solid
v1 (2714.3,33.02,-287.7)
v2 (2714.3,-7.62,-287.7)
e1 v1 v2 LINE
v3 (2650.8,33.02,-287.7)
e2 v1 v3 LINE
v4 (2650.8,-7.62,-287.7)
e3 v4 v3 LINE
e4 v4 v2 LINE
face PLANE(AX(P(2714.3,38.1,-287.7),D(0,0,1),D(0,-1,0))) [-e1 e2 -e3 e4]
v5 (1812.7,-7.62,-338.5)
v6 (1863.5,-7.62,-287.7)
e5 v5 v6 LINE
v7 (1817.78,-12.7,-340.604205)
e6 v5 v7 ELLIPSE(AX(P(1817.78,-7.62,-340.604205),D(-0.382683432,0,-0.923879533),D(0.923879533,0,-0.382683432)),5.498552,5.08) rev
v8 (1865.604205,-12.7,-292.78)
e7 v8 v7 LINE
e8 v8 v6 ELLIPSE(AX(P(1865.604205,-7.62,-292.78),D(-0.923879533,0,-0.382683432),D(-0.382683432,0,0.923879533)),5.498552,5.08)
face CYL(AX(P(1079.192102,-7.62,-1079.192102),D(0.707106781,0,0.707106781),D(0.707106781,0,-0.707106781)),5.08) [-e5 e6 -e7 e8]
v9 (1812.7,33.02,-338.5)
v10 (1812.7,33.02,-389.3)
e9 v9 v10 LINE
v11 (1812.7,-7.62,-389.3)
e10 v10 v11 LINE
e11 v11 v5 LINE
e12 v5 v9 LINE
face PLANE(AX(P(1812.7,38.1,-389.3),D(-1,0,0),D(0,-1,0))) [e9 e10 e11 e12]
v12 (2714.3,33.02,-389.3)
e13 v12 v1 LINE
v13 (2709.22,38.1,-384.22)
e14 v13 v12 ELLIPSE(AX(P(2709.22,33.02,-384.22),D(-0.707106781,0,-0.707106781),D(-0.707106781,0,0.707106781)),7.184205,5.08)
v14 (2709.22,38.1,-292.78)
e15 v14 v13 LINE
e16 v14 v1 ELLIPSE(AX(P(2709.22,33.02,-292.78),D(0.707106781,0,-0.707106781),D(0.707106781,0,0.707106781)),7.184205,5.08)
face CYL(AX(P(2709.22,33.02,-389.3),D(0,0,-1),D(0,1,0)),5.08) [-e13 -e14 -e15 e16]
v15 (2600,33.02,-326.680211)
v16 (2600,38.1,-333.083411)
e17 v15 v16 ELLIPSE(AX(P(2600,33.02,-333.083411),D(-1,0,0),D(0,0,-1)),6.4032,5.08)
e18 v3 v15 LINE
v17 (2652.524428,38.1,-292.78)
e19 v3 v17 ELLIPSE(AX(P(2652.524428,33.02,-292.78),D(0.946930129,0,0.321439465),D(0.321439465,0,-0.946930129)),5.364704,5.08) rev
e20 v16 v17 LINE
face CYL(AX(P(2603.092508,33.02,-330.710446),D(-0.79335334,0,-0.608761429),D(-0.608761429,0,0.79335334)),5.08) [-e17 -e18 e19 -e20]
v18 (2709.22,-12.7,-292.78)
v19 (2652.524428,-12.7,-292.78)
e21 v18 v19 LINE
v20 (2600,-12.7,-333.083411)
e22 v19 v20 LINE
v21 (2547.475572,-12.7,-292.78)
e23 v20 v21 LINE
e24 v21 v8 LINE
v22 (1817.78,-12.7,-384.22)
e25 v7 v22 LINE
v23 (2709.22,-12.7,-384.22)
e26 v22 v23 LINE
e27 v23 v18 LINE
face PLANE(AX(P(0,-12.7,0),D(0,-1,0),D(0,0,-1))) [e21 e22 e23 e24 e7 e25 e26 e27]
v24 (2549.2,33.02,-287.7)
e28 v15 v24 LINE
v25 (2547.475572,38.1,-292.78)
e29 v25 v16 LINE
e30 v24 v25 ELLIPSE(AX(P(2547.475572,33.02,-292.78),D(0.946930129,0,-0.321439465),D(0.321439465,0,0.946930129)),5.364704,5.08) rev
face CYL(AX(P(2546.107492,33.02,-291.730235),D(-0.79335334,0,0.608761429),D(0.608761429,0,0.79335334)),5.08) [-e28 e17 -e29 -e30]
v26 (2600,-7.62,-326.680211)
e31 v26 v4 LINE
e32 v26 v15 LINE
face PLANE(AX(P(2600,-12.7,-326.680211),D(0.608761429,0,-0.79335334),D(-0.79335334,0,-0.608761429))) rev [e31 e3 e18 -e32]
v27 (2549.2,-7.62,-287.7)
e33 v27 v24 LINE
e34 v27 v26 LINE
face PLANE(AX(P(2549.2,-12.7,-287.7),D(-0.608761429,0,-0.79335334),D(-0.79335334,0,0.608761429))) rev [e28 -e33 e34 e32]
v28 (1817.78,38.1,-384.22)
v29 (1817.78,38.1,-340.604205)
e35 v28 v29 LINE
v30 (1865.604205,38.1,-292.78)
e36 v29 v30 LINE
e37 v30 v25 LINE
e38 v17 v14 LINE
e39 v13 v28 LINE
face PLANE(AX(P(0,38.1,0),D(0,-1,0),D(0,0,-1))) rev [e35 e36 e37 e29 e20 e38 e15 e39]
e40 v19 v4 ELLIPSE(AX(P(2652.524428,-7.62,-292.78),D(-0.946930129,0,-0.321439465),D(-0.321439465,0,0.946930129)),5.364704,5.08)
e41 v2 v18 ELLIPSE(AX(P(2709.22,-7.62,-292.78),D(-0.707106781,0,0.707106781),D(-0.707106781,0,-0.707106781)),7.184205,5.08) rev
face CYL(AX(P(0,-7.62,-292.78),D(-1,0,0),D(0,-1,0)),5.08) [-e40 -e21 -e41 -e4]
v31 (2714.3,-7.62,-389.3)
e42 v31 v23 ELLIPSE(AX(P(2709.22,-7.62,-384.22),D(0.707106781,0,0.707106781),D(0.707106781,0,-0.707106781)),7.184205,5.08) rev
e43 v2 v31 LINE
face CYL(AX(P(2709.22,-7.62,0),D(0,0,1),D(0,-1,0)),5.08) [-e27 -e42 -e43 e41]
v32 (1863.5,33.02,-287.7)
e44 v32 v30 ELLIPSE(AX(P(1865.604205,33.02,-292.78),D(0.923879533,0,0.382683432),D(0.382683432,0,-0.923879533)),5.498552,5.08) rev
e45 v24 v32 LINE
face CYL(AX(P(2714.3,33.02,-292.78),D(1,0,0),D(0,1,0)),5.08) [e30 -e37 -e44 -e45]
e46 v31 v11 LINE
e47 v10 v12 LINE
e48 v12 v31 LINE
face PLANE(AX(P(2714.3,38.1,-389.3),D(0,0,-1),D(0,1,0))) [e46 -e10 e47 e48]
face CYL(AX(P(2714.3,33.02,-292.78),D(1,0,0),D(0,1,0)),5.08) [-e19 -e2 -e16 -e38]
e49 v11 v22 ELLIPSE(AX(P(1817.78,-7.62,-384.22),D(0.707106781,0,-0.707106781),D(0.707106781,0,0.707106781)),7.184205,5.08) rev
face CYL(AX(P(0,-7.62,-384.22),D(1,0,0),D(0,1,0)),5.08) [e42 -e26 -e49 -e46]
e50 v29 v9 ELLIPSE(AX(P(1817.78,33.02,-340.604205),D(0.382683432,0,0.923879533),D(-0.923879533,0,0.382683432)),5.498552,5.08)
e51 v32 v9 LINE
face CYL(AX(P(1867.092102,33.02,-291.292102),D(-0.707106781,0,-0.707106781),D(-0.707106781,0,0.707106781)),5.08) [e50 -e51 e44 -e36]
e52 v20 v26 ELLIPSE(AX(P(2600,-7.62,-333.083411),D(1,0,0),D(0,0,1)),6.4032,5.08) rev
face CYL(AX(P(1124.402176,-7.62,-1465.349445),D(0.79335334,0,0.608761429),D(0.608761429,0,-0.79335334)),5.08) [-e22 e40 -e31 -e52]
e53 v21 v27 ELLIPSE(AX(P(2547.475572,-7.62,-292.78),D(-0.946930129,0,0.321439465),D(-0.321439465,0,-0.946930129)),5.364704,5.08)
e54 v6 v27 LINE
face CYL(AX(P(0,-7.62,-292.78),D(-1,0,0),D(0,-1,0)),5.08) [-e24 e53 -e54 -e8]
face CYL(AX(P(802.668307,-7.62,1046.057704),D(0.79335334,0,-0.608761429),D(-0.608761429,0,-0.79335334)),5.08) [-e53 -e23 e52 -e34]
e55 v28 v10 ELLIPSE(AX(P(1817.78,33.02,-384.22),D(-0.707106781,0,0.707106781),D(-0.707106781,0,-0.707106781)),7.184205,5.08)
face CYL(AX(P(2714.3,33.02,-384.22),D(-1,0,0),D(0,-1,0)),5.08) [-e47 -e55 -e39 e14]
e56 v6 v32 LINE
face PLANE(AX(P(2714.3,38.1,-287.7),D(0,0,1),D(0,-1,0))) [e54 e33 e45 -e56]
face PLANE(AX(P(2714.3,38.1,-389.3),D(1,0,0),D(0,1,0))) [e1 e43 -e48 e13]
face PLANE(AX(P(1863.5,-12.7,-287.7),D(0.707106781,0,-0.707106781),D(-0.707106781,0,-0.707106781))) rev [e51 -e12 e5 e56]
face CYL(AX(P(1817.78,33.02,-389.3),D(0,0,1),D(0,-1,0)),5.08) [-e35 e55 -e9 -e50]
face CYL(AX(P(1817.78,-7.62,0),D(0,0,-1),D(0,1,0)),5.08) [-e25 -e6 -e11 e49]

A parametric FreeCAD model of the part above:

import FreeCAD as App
import Part
import Sketcher
Q = App.Units.Quantity


def edges_at(feature, points):
    """Names of the edges that pass closest to the given points."""
    edges = feature.Shape.Edges
    near = lambda p: min(range(len(edges)), key=lambda i: edges[i].distToShape(Part.Vertex(*p))[0])
    return sorted({f"Edge{near(p) + 1}" for p in points})

doc = App.newDocument("Part")
params = doc.addObject("Spreadsheet::Sheet", "Params")
for row, (alias, value) in enumerate([
    ("sketch1_height", "4 in"),
    ("pad1_length", "2 in"),
    ("sketch2_width", "4 in"),
    ("sketch2_width2", "2 in"),
    ("fillet_radius", "0.2 in"),
], start=1):
    params.set(f"A{row}", alias)
    params.set(f"B{row}", "=" + value)
    params.setAlias(f"B{row}", alias)

body = doc.addObject("PartDesign::Body", "Body")

sketch1 = body.newObject("Sketcher::SketchObject", "Sketch")
sketch1.AttachmentSupport = (doc.getObject("XZ_Plane"), [""])
sketch1.MapMode = "FlatFace"
sketch1.AttachmentOffset = App.Placement(App.Vector(0, 0, 0.5 * 25.4), App.Rotation())
sketch1.addGeometry([
    Part.LineSegment(App.Vector(2714, -389, 0), App.Vector(2714, -288, 0)),
    Part.LineSegment(App.Vector(2714, -288, 0), App.Vector(1813, -288, 0)),
    Part.LineSegment(App.Vector(1813, -288, 0), App.Vector(1813, -389, 0)),
    Part.LineSegment(App.Vector(1813, -389, 0), App.Vector(2714, -389, 0)),
], False)
sketch1.addConstraint([
    Sketcher.Constraint("Coincident", 0, 2, 1, 1),
    Sketcher.Constraint("Coincident", 1, 2, 2, 1),
    Sketcher.Constraint("Coincident", 2, 2, 3, 1),
    Sketcher.Constraint("Coincident", 3, 2, 0, 1),
    Sketcher.Constraint("Vertical", 0),
    Sketcher.Constraint("Horizontal", 1),
    Sketcher.Constraint("Vertical", 2),
    Sketcher.Constraint("Horizontal", 3),
    Sketcher.Constraint("DistanceY", 0, 1, 0, 2, Q("4 in")),
    Sketcher.Constraint("DistanceX", 1, 2, 1, 1, 901.6),
    Sketcher.Constraint("DistanceX", -1, 1, 0, 2, 2714.3),
    Sketcher.Constraint("DistanceY", 0, 2, -1, 1, 287.7),
])
sketch1.setExpression("Constraints[8]", "Params.sketch1_height")
pad1 = body.newObject("PartDesign::Pad", "Pad")
pad1.Profile = sketch1
pad1.setExpression("Length", "Params.pad1_length")
pad1.Reversed = True

sketch2 = body.newObject("Sketcher::SketchObject", "Sketch001")
sketch2.AttachmentSupport = (doc.getObject("XZ_Plane"), [""])
sketch2.MapMode = "FlatFace"
sketch2.AttachmentOffset = App.Placement(App.Vector(0, 0, -1.5 * 25.4), App.Rotation())
sketch2.addGeometry([
    Part.LineSegment(App.Vector(2600, -327, 0), App.Vector(2549, -288, 0)),
    Part.LineSegment(App.Vector(2549, -288, 0), App.Vector(2651, -288, 0)),
    Part.LineSegment(App.Vector(2651, -288, 0), App.Vector(2600, -327, 0)),
    Part.LineSegment(App.Vector(1813, -338, 0), App.Vector(1813, -288, 0)),
    Part.LineSegment(App.Vector(1813, -288, 0), App.Vector(1864, -288, 0)),
    Part.LineSegment(App.Vector(1864, -288, 0), App.Vector(1813, -338, 0)),
], False)
sketch2.addConstraint([
    Sketcher.Constraint("Coincident", 0, 2, 1, 1),
    Sketcher.Constraint("Coincident", 1, 2, 2, 1),
    Sketcher.Constraint("Coincident", 2, 2, 0, 1),
    Sketcher.Constraint("Coincident", 3, 2, 4, 1),
    Sketcher.Constraint("Coincident", 4, 2, 5, 1),
    Sketcher.Constraint("Coincident", 5, 2, 3, 1),
    Sketcher.Constraint("Horizontal", 1),
    Sketcher.Constraint("Vertical", 3),
    Sketcher.Constraint("Horizontal", 4),
    Sketcher.Constraint("Horizontal", 1, 2, 3, 2),
    Sketcher.Constraint("Equal", 4, 3),
    Sketcher.Constraint("Equal", 0, 2),
    Sketcher.Constraint("DistanceX", 1, 1, 1, 2, Q("4 in")),
    Sketcher.Constraint("DistanceX", 4, 1, 4, 2, Q("2 in")),
    Sketcher.Constraint("Angle", 0, Q("142.5 deg")),
    Sketcher.Constraint("DistanceX", -1, 1, 0, 2, 2549.2),
    Sketcher.Constraint("DistanceY", 0, 2, -1, 1, 287.7),
    Sketcher.Constraint("DistanceX", -1, 1, 3, 2, 1812.7),
])
sketch2.setExpression("Constraints[12]", "Params.sketch2_width")
sketch2.setExpression("Constraints[13]", "Params.sketch2_width2")
pocket1 = body.newObject("PartDesign::Pocket", "Pocket")
pocket1.Profile = sketch2
pocket1.Type = "ThroughAll"
pocket1.Reversed = True
doc.recompute()

fillet = body.newObject("PartDesign::Fillet", "Fillet")
fillet.Base = (pocket1, edges_at(pocket1, [
    (2206.35, -12.7, -287.7),
    (1812.7, -12.7, -363.9),
    (2263.5, 38.1, -389.3),
    (1812.7, 38.1, -363.9),
    (2206.35, 38.1, -287.7),
    (2574.6, -12.7, -307.19),
    (2625.4, -12.7, -307.19),
    (2625.4, 38.1, -307.19),
    (2574.6, 38.1, -307.19),
    (1838.1, -12.7, -313.1),
    (1838.1, 38.1, -313.1),
    (2714.3, 38.1, -338.5),
    (2263.5, -12.7, -389.3),
    (2682.55, -12.7, -287.7),
    (2714.3, -12.7, -338.5),
    (2682.55, 38.1, -287.7),
]))
fillet.setExpression("Radius", "Params.fillet_radius")

doc.recompute()
